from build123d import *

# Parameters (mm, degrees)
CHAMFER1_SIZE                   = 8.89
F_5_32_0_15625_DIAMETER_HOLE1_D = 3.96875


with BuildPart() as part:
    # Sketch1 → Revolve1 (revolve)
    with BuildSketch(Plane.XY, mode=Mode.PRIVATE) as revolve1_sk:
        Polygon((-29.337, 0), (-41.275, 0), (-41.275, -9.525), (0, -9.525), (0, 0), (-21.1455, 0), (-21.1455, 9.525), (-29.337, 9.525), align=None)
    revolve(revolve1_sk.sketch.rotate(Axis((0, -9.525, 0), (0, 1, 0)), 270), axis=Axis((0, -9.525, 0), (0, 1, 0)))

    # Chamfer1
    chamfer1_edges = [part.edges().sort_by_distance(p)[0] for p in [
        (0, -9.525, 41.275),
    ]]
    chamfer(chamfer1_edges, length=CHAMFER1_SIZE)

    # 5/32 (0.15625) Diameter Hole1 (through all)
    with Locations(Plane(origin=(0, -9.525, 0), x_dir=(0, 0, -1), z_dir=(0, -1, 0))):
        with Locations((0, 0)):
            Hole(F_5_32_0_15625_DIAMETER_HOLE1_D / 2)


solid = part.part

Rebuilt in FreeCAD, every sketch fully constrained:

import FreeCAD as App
import Part
import Sketcher

V = App.Vector
Q = App.Units.Quantity


def edges_at(feature, points):
    """Names of the edges that pass closest to the given points."""
    edges = feature.Shape.Edges
    near = lambda p: min(range(len(edges)), key=lambda i: edges[i].distToShape(Part.Vertex(*p))[0])
    return sorted({f"Edge{near(p) + 1}" for p in points})

doc = App.newDocument("Part")
params = doc.addObject("Spreadsheet::Sheet", "Params")
for row, (alias, value) in enumerate([
    ("sketch1_width", "0.47 in"),
    ("sketch1_width2", "1.625 in"),
    ("sketch1_height", "0.375 in"),
    ("revolution_angle", "360 deg"),
    ("chamfer_size", "0.35 in"),
    ("sketch2_diameter", "0.15625 in"),
    ("hole_diameter", "0.15625 in"),
], start=1):
    params.set(f"A{row}", alias)
    params.set(f"B{row}", "=" + value)
    params.setAlias(f"B{row}", alias)

body = doc.addObject("PartDesign::Body", "Body")

# Sketch on XY plane
sketch1 = body.newObject("Sketcher::SketchObject", "Sketch")
sketch1.AttachmentSupport = (doc.getObject("XY_Plane"), [""])
sketch1.MapMode = "FlatFace"
sketch1.addGeometry([
    Part.LineSegment(V(-29, 0, 0), V(-41, 0, 0)),  # 0
    Part.LineSegment(V(-41, 0, 0), V(-41, -10, 0)),  # 1
    Part.LineSegment(V(-41, -10, 0), V(0, -10, 0)),  # 2
    Part.LineSegment(V(0, -10, 0), V(0, 0, 0)),  # 3
    Part.LineSegment(V(0, 0, 0), V(-21, 0, 0)),  # 4
    Part.LineSegment(V(-21, 0, 0), V(-21, 10, 0)),  # 5
    Part.LineSegment(V(-21, 10, 0), V(-29, 10, 0)),  # 6
    Part.LineSegment(V(-29, 10, 0), V(-29, 0, 0)),  # 7
], False)
sketch1.addConstraint([
    Sketcher.Constraint("Coincident", 0, 2, 1, 1),
    Sketcher.Constraint("Coincident", 1, 2, 2, 1),
    Sketcher.Constraint("Coincident", 2, 2, 3, 1),
    Sketcher.Constraint("Coincident", 3, 2, 4, 1),
    Sketcher.Constraint("Coincident", 4, 2, 5, 1),
    Sketcher.Constraint("Coincident", 5, 2, 6, 1),
    Sketcher.Constraint("Coincident", 6, 2, 7, 1),
    Sketcher.Constraint("Coincident", 7, 2, 0, 1),
    Sketcher.Constraint("Horizontal", 0),
    Sketcher.Constraint("Vertical", 1),
    Sketcher.Constraint("Horizontal", 2),
    Sketcher.Constraint("Vertical", 3),
    Sketcher.Constraint("Horizontal", 4),
    Sketcher.Constraint("Vertical", 5),
    Sketcher.Constraint("Horizontal", 6),
    Sketcher.Constraint("Vertical", 7),
    Sketcher.Constraint("Coincident", 3, 2, -1, 1),
    Sketcher.Constraint("PointOnObject", 0, 2, -1),
    Sketcher.Constraint("Equal", 3, 5),
    Sketcher.Constraint("DistanceX", 0, 2, 0, 1, Q("0.47 in")),
    Sketcher.Constraint("DistanceX", 2, 1, 2, 2, Q("1.625 in")),
    Sketcher.Constraint("DistanceY", 1, 2, 1, 1, Q("0.375 in")),
    Sketcher.Constraint("DistanceX", 4, 2, 4, 1, Q("0.8325 in")),
])
sketch1.setExpression("Constraints[19]", "Params.sketch1_width")
sketch1.setExpression("Constraints[20]", "Params.sketch1_width2")
sketch1.setExpression("Constraints[21]", "Params.sketch1_height")
revolution = body.newObject("PartDesign::Revolution", "Revolution")
revolution.Profile = sketch1
revolution.ReferenceAxis = (sketch1, ["V_Axis"])
revolution.setExpression("Angle", "Params.revolution_angle")
doc.recompute()

chamfer = body.newObject("PartDesign::Chamfer", "Chamfer")
chamfer.Base = (revolution, edges_at(revolution, [(0, -9.525, 41.275)]))
chamfer.setExpression("Size", "Params.chamfer_size")

# Sketch on XZ plane
sketch2 = body.newObject("Sketcher::SketchObject", "Sketch001")
sketch2.AttachmentSupport = (doc.getObject("XZ_Plane"), [""])
sketch2.MapMode = "FlatFace"
sketch2.AttachmentOffset = App.Placement(V(0, 0, 0.375 * 25.4), App.Rotation())
sketch2.addGeometry(Part.Circle(V(0, 0, 0), V(0, 0, 1), 2), False)
sketch2.addConstraint([
    Sketcher.Constraint("Coincident", 0, 3, -1, 1),
    Sketcher.Constraint("Diameter", 0, Q("0.15625 in")),
])
sketch2.setExpression("Constraints[1]", "Params.sketch2_diameter")
doc.recompute()
hole = body.newObject("PartDesign::Hole", "Hole")
hole.Profile = sketch2
hole.ThreadType = "None"
hole.setExpression("Diameter", "Params.hole_diameter")
hole.DepthType = "ThroughAll"

doc.recompute()
